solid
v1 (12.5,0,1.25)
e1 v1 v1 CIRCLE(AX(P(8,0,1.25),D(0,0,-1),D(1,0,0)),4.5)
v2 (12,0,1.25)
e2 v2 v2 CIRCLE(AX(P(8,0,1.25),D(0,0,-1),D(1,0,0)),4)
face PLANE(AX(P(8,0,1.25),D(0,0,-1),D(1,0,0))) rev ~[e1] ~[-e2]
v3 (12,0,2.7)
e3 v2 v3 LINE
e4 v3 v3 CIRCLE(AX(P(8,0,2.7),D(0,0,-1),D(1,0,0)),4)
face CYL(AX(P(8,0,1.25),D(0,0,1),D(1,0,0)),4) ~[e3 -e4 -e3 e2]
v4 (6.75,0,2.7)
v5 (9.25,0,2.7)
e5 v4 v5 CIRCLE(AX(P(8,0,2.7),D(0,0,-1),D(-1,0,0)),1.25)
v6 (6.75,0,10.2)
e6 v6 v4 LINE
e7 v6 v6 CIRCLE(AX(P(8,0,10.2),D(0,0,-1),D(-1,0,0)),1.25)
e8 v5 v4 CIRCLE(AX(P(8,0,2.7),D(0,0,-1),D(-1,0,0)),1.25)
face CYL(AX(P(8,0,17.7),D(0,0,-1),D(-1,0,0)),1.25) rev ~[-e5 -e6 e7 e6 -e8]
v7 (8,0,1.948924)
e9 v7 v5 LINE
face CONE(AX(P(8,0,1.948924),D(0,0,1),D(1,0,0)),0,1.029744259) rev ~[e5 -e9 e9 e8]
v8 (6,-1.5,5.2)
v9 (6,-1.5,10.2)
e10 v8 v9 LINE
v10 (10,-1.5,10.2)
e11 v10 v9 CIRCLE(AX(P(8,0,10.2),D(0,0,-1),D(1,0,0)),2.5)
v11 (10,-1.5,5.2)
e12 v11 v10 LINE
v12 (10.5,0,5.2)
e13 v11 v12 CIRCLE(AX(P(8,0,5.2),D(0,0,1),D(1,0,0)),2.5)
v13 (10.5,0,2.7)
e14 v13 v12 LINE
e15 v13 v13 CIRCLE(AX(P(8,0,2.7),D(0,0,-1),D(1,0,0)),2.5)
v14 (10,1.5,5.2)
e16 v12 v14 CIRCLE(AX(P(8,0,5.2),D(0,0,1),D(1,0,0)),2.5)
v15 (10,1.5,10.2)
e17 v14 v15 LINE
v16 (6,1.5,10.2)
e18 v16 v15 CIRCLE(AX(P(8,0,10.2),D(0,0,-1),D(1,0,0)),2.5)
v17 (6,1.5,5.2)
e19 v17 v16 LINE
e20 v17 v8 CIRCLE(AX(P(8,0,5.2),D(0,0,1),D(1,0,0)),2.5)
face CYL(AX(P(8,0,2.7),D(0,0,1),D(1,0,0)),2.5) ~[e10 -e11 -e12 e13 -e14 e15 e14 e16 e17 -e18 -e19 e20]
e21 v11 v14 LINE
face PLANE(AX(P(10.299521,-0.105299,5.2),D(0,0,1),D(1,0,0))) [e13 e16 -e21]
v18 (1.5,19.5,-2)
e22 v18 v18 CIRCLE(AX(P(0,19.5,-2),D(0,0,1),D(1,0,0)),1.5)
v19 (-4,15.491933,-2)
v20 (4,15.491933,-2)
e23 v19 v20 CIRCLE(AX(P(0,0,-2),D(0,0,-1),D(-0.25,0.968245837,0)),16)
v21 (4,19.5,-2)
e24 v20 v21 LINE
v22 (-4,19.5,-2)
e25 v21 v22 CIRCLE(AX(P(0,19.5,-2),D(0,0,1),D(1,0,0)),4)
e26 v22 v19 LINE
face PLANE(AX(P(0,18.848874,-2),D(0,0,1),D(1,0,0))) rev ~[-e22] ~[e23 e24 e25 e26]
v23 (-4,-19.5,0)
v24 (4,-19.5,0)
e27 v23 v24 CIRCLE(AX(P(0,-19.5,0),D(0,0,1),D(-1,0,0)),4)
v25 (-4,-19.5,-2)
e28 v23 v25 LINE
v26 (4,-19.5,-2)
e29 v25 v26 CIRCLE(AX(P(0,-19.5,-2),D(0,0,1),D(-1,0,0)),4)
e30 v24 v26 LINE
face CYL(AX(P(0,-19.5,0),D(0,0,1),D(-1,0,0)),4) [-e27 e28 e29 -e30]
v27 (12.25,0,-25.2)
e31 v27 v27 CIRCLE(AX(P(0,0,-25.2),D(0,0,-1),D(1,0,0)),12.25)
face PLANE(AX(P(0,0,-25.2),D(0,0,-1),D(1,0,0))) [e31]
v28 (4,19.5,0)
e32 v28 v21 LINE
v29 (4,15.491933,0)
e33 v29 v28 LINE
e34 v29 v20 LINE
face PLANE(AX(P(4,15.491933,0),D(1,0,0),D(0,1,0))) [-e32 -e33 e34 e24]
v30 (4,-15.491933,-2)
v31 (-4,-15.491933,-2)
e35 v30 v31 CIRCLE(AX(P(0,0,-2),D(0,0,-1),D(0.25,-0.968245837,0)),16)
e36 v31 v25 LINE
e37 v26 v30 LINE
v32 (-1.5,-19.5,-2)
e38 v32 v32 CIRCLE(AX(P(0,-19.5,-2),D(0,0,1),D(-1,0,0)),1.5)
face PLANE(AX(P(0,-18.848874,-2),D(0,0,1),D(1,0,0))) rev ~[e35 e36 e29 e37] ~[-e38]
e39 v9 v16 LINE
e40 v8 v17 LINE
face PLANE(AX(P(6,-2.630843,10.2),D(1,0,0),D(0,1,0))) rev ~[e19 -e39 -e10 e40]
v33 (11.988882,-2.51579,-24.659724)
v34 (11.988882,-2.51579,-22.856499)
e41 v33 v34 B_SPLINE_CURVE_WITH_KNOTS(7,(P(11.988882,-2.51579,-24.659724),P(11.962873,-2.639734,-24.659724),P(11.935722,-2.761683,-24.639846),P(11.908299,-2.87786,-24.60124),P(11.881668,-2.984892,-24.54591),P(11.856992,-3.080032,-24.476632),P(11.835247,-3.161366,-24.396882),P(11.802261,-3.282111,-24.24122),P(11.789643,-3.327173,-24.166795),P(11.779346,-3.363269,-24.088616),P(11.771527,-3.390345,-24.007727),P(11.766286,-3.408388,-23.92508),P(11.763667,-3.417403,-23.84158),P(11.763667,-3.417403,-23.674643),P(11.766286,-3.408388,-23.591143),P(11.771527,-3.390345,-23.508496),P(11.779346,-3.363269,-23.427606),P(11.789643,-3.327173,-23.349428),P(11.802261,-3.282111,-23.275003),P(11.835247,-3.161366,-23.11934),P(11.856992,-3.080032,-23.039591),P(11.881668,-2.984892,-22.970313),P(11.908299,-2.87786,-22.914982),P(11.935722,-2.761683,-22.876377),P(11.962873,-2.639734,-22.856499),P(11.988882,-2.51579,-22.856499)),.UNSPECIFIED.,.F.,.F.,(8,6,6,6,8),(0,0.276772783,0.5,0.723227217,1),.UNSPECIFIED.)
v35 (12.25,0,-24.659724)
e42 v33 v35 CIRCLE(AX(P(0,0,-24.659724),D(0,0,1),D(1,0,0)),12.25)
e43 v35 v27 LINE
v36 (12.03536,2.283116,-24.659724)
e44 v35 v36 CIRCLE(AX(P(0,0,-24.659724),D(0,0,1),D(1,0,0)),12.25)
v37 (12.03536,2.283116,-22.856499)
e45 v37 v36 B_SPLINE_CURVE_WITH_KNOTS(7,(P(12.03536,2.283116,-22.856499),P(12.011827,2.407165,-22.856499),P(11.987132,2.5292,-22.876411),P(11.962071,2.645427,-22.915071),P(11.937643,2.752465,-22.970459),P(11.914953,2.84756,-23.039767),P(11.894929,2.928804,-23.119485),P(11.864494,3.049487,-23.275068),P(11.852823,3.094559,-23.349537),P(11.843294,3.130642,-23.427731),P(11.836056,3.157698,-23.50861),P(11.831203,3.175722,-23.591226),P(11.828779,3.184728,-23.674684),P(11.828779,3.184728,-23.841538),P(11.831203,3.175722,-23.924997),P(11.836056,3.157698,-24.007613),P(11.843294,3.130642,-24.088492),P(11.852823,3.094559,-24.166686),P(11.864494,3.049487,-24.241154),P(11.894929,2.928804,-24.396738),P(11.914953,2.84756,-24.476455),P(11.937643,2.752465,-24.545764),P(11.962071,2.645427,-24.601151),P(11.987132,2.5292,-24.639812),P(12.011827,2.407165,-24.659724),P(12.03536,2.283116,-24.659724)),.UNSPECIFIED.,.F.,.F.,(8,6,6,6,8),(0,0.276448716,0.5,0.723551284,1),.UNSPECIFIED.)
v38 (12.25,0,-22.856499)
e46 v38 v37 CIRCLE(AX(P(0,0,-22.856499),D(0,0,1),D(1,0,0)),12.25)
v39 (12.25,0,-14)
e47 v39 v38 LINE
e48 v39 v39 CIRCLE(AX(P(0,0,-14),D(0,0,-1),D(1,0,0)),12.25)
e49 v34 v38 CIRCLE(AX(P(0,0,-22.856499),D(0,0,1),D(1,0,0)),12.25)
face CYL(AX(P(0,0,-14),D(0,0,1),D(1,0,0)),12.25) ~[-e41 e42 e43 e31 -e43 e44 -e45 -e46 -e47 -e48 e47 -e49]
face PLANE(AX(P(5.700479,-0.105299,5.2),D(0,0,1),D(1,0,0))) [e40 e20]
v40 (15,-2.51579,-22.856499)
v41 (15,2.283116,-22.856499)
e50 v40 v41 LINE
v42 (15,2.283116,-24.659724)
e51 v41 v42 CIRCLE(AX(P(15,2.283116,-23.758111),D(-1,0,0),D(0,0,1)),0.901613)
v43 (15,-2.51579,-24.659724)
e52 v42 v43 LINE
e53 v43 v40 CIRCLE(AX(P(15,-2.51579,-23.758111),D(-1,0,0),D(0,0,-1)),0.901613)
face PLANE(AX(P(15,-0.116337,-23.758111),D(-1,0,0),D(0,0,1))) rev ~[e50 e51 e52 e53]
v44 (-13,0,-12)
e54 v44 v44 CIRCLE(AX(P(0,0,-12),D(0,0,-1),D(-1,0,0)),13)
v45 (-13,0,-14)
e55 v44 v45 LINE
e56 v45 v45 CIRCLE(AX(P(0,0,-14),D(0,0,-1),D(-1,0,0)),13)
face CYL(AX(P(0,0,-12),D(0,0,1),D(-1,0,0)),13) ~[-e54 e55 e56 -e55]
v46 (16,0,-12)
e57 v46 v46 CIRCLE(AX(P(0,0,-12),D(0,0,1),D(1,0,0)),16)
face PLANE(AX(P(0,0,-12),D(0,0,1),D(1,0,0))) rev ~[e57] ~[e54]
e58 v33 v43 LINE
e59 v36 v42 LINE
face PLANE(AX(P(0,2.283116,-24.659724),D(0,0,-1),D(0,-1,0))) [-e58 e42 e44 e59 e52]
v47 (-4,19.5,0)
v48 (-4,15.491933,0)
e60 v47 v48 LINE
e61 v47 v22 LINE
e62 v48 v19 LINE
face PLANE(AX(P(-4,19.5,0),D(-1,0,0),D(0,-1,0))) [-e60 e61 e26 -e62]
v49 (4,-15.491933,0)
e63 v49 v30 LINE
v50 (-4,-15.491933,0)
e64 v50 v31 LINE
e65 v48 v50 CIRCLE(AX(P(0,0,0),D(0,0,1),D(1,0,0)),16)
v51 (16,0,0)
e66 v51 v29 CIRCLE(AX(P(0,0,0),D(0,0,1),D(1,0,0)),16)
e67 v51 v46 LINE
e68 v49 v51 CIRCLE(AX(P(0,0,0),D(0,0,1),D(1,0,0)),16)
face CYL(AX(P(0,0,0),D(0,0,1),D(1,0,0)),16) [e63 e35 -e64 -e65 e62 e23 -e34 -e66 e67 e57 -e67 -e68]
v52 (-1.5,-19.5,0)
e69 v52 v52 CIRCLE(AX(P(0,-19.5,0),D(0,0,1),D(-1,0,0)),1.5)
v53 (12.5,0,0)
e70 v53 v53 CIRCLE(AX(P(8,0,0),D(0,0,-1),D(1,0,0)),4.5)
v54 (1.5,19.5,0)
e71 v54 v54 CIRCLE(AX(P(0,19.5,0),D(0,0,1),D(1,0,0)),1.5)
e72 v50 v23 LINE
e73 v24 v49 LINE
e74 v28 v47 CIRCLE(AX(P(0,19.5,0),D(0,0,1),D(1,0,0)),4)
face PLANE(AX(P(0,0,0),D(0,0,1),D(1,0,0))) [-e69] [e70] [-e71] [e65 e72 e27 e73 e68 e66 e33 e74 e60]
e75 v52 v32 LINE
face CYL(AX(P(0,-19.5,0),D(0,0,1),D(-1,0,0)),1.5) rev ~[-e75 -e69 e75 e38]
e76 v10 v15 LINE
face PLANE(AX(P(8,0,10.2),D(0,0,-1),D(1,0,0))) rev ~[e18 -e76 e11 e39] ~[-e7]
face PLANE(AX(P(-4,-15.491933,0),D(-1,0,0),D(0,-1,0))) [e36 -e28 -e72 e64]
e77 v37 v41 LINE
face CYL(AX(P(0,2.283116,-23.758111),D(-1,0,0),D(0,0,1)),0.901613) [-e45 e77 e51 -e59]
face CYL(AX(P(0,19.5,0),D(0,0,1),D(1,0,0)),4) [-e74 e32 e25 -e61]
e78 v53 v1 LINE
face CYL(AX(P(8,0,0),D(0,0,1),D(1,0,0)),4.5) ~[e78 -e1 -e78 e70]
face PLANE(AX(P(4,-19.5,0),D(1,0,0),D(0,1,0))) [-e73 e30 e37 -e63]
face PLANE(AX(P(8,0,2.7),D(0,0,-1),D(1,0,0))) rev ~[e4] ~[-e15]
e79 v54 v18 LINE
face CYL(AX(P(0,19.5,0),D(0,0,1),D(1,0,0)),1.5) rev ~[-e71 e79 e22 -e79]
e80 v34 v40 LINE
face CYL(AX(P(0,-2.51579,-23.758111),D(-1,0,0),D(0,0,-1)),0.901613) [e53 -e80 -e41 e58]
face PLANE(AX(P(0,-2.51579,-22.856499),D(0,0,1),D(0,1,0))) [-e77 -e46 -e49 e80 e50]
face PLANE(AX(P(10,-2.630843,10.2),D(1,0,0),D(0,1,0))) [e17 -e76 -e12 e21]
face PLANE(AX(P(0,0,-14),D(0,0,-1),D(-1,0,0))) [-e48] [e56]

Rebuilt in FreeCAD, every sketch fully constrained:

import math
import FreeCAD as App
import Part
import Sketcher
from FreeCAD import Vector
Q = App.Units.Quantity

doc = App.newDocument("Part")
params = doc.addObject("Spreadsheet::Sheet", "Params")
for row, (alias, value) in enumerate([
    ("sketch1_diameter", "32 mm"),
    ("pad1_length", "12 mm"),
    ("sketch2_diameter", "26 mm"),
    ("pad2_length", "2 mm"),
    ("sketch3_diameter", "24.5 mm"),
    ("pad3_length", "11.2 mm"),
    ("sketch4_diameter", "3 mm"),
    ("sketch4_radius", "16 mm"),
    ("sketch4_radius2", "4 mm"),
    ("pad4_length", "2 mm"),
    ("sketch5_width", "4.5 mm"),
    ("sketch5_width2", "0.5 mm"),
    ("sketch5_width3", "1.5 mm"),
    ("sketch5_height", "10.2 mm"),
    ("sketch5_height2", "7.5 mm"),
    ("revolution_angle", "360 deg"),
    ("pocket1_length", "5 mm"),
    ("sketch7_diameter", "2.5 mm"),
    ("hole_diameter", "2.5 mm"),
    ("hole_depth", "7.5 mm"),
    ("pad5_length", "15 mm"),
], start=1):
    params.set(f"A{row}", alias)
    params.set(f"B{row}", "=" + value)
    params.setAlias(f"B{row}", alias)

body = doc.addObject("PartDesign::Body", "Body")

sketch1 = body.newObject("Sketcher::SketchObject", "Sketch")
sketch1.AttachmentSupport = (doc.getObject("XY_Plane"), [""])
sketch1.MapMode = "FlatFace"
sketch1.addGeometry(Part.Circle(Vector(0, 0, 0), Vector(0, 0, 1), 16), False)
sketch1.addConstraint([
    Sketcher.Constraint("Coincident", 0, 3, -1, 1),
    Sketcher.Constraint("Diameter", 0, Q("32 mm")),
])
sketch1.setExpression("Constraints[1]", "Params.sketch1_diameter")
pad1 = body.newObject("PartDesign::Pad", "Pad")
pad1.Profile = sketch1
pad1.setExpression("Length", "Params.pad1_length")
pad1.Reversed = True

sketch2 = body.newObject("Sketcher::SketchObject", "Sketch001")
sketch2.AttachmentSupport = (doc.getObject("XY_Plane"), [""])
sketch2.MapMode = "FlatFace"
sketch2.AttachmentOffset = App.Placement(Vector(0, 0, -12), App.Rotation())
sketch2.addGeometry(Part.Circle(Vector(0, 0, 0), Vector(0, 0, 1), 13), False)
sketch2.addConstraint([
    Sketcher.Constraint("Coincident", 0, 3, -1, 1),
    Sketcher.Constraint("Diameter", 0, Q("26 mm")),
])
sketch2.setExpression("Constraints[1]", "Params.sketch2_diameter")
pad2 = body.newObject("PartDesign::Pad", "Pad001")
pad2.Profile = sketch2
pad2.setExpression("Length", "Params.pad2_length")
pad2.Reversed = True

sketch3 = body.newObject("Sketcher::SketchObject", "Sketch002")
sketch3.AttachmentSupport = (doc.getObject("XY_Plane"), [""])
sketch3.MapMode = "FlatFace"
sketch3.AttachmentOffset = App.Placement(Vector(0, 0, -14), App.Rotation())
sketch3.addGeometry(Part.Circle(Vector(0, 0, 0), Vector(0, 0, 1), 12), False)
sketch3.addConstraint([
    Sketcher.Constraint("Coincident", 0, 3, -1, 1),
    Sketcher.Constraint("Diameter", 0, Q("24.5 mm")),
])
sketch3.setExpression("Constraints[1]", "Params.sketch3_diameter")
pad3 = body.newObject("PartDesign::Pad", "Pad002")
pad3.Profile = sketch3
pad3.setExpression("Length", "Params.pad3_length")
pad3.Reversed = True

sketch4 = body.newObject("Sketcher::SketchObject", "Sketch003")
sketch4.AttachmentSupport = (doc.getObject("XY_Plane"), [""])
sketch4.MapMode = "FlatFace"
sketch4.addGeometry([
    Part.LineSegment(Vector(-4, 19.5, 0), Vector(-4, 15.5, 0)),
    Part.ArcOfCircle(Part.Circle(Vector(0, 0, 0), Vector(0, 0, 1), 16), math.radians(76), math.radians(104)),
    Part.LineSegment(Vector(4, 15.5, 0), Vector(4, 19.5, 0)),
    Part.ArcOfCircle(Part.Circle(Vector(0, 19.5, 0), Vector(0, 0, 1), 4), math.radians(0), math.radians(180)),
    Part.Circle(Vector(0, 19.5, 0), Vector(0, 0, 1), 1.5),
    Part.LineSegment(Vector(-4, -15.5, 0), Vector(-4, -19.5, 0)),
    Part.ArcOfCircle(Part.Circle(Vector(0, -19.5, 0), Vector(0, 0, 1), 4), math.radians(180), math.radians(360)),
    Part.LineSegment(Vector(4, -19.5, 0), Vector(4, -15.5, 0)),
    Part.ArcOfCircle(Part.Circle(Vector(0, 0, 0), Vector(0, 0, 1), 16), math.radians(-104), math.radians(-76)),
    Part.Circle(Vector(0, -19.5, 0), Vector(0, 0, 1), 1.5),
], False)
sketch4.addConstraint([
    Sketcher.Constraint("Coincident", 0, 2, 1, 2),
    Sketcher.Constraint("Coincident", 1, 1, 2, 1),
    Sketcher.Constraint("Tangent", 2, 2, 3, 1),
    Sketcher.Constraint("Tangent", 3, 2, 0, 1),
    Sketcher.Constraint("Tangent", 5, 2, 6, 1),
    Sketcher.Constraint("Tangent", 6, 2, 7, 1),
    Sketcher.Constraint("Coincident", 7, 2, 8, 2),
    Sketcher.Constraint("Coincident", 8, 1, 5, 1),
    Sketcher.Constraint("Vertical", 0),
    Sketcher.Constraint("Vertical", 2),
    Sketcher.Constraint("Vertical", 5),
    Sketcher.Constraint("Vertical", 7),
    Sketcher.Constraint("Coincident", 1, 3, -1, 1),
    Sketcher.Constraint("Coincident", 8, 3, -1, 1),
    Sketcher.Constraint("Coincident", 4, 3, 3, 3),
    Sketcher.Constraint("Coincident", 9, 3, 6, 3),
    Sketcher.Constraint("Equal", 3, 6),
    Sketcher.Constraint("Equal", 1, 8),
    Sketcher.Constraint("Equal", 4, 9),
    Sketcher.Constraint("Symmetric", 3, 3, 6, 3, -1, 1),
    Sketcher.Constraint("PointOnObject", 3, 3, -2),
    Sketcher.Constraint("Diameter", 4, Q("3 mm")),
    Sketcher.Constraint("Radius", 1, Q("16 mm")),
    Sketcher.Constraint("Radius", 3, Q("4 mm")),
    Sketcher.Constraint("DistanceY", 6, 3, 3, 3, Q("39 mm")),
])
sketch4.setExpression("Constraints[21]", "Params.sketch4_diameter")
sketch4.setExpression("Constraints[22]", "Params.sketch4_radius")
sketch4.setExpression("Constraints[23]", "Params.sketch4_radius2")
pad4 = body.newObject("PartDesign::Pad", "Pad003")
pad4.Profile = sketch4
pad4.setExpression("Length", "Params.pad4_length")
pad4.Reversed = True

sketch5 = body.newObject("Sketcher::SketchObject", "Sketch004")
sketch5.AttachmentSupport = (doc.getObject("XZ_Plane"), [""])
sketch5.MapMode = "FlatFace"
sketch5.addGeometry([
    Part.LineSegment(Vector(8, 10.2, 0), Vector(8, 0, 0)),
    Part.LineSegment(Vector(8, 0, 0), Vector(3.5, 0, 0)),
    Part.LineSegment(Vector(3.5, 0, 0), Vector(3.5, 1.2, 0)),
    Part.LineSegment(Vector(3.5, 1.2, 0), Vector(4, 1.2, 0)),
    Part.LineSegment(Vector(4, 1.2, 0), Vector(4, 2.7, 0)),
    Part.LineSegment(Vector(4, 2.7, 0), Vector(5.5, 2.7, 0)),
    Part.LineSegment(Vector(5.5, 2.7, 0), Vector(5.5, 10.2, 0)),
    Part.LineSegment(Vector(5.5, 10.2, 0), Vector(8, 10.2, 0)),
], False)
sketch5.addGeometry(Part.LineSegment(Vector(8, 10.2, 0), Vector(8, 0, 0)), True)
sketch5.addConstraint([
    Sketcher.Constraint("Coincident", 0, 2, 1, 1),
    Sketcher.Constraint("Coincident", 1, 2, 2, 1),
    Sketcher.Constraint("Coincident", 2, 2, 3, 1),
    Sketcher.Constraint("Coincident", 3, 2, 4, 1),
    Sketcher.Constraint("Coincident", 4, 2, 5, 1),
    Sketcher.Constraint("Coincident", 5, 2, 6, 1),
    Sketcher.Constraint("Coincident", 6, 2, 7, 1),
    Sketcher.Constraint("Coincident", 7, 2, 0, 1),
    Sketcher.Constraint("Vertical", 0),
    Sketcher.Constraint("Horizontal", 1),
    Sketcher.Constraint("Vertical", 2),
    Sketcher.Constraint("Horizontal", 3),
    Sketcher.Constraint("Vertical", 4),
    Sketcher.Constraint("Horizontal", 5),
    Sketcher.Constraint("Vertical", 6),
    Sketcher.Constraint("Horizontal", 7),
    Sketcher.Constraint("Vertical", 8),
    Sketcher.Constraint("Coincident", 8, 1, 7, 2),
    Sketcher.Constraint("PointOnObject", 0, 2, -1),
    Sketcher.Constraint("PointOnObject", 8, 2, -1),
    Sketcher.Constraint("DistanceX", 1, 2, 1, 1, Q("4.5 mm")),
    Sketcher.Constraint("DistanceX", 3, 1, 3, 2, Q("0.5 mm")),
    Sketcher.Constraint("DistanceX", 5, 1, 5, 2, Q("1.5 mm")),
    Sketcher.Constraint("DistanceY", 0, 2, 0, 1, Q("10.2 mm")),
    Sketcher.Constraint("DistanceY", 6, 1, 6, 2, Q("7.5 mm")),
    Sketcher.Constraint("DistanceX", -1, 1, 0, 2, Q("8 mm")),
    Sketcher.Constraint("DistanceY", 2, 1, 2, 2, Q("1.25 mm")),
])
sketch5.setExpression("Constraints[20]", "Params.sketch5_width")
sketch5.setExpression("Constraints[21]", "Params.sketch5_width2")
sketch5.setExpression("Constraints[22]", "Params.sketch5_width3")
sketch5.setExpression("Constraints[23]", "Params.sketch5_height")
sketch5.setExpression("Constraints[24]", "Params.sketch5_height2")
revolution = body.newObject("PartDesign::Revolution", "Revolution")
revolution.Profile = sketch5
revolution.ReferenceAxis = (sketch5, ["Axis0"])
revolution.setExpression("Angle", "Params.revolution_angle")

sketch6 = body.newObject("Sketcher::SketchObject", "Sketch005")
sketch6.AttachmentSupport = (doc.getObject("XY_Plane"), [""])
sketch6.MapMode = "FlatFace"
sketch6.AttachmentOffset = App.Placement(Vector(0, 0, 10.2), App.Rotation())
sketch6.addGeometry([
    Part.LineSegment(Vector(5.4, 2.4, 0), Vector(5.4, -2.6, 0)),
    Part.LineSegment(Vector(5.4, -2.6, 0), Vector(6, -2.6, 0)),
    Part.LineSegment(Vector(6, -2.6, 0), Vector(6, 2.4, 0)),
    Part.LineSegment(Vector(6, 2.4, 0), Vector(5.4, 2.4, 0)),
    Part.LineSegment(Vector(10, 2.4, 0), Vector(10, -2.6, 0)),
    Part.LineSegment(Vector(10, -2.6, 0), Vector(10.6, -2.6, 0)),
    Part.LineSegment(Vector(10.6, -2.6, 0), Vector(10.6, 2.4, 0)),
    Part.LineSegment(Vector(10.6, 2.4, 0), Vector(10, 2.4, 0)),
], False)
sketch6.addConstraint([
    Sketcher.Constraint("Coincident", 0, 2, 1, 1),
    Sketcher.Constraint("Coincident", 1, 2, 2, 1),
    Sketcher.Constraint("Coincident", 2, 2, 3, 1),
    Sketcher.Constraint("Coincident", 3, 2, 0, 1),
    Sketcher.Constraint("Coincident", 4, 2, 5, 1),
    Sketcher.Constraint("Coincident", 5, 2, 6, 1),
    Sketcher.Constraint("Coincident", 6, 2, 7, 1),
    Sketcher.Constraint("Coincident", 7, 2, 4, 1),
    Sketcher.Constraint("Vertical", 0),
    Sketcher.Constraint("Horizontal", 1),
    Sketcher.Constraint("Vertical", 2),
    Sketcher.Constraint("Horizontal", 3),
    Sketcher.Constraint("Vertical", 4),
    Sketcher.Constraint("Horizontal", 5),
    Sketcher.Constraint("Vertical", 6),
    Sketcher.Constraint("Horizontal", 7),
    Sketcher.Constraint("Horizontal", 1, 2, 4, 2),
    Sketcher.Constraint("Horizontal", 3, 2, 6, 2),
    Sketcher.Constraint("Equal", 3, 5),
    Sketcher.Constraint("DistanceX", -1, 1, 1, 2, Q("6 mm")),
    Sketcher.Constraint("DistanceX", -1, 1, 4, 2, Q("10 mm")),
    Sketcher.Constraint("DistanceX", 1, 1, 1, 2, Q("0.599042 mm")),
    Sketcher.Constraint("DistanceY", 0, 2, 0, 1, Q("5.051088 mm")),
    Sketcher.Constraint("DistanceY", 0, 2, -1, 1, Q("2.630843 mm")),
])
pocket1 = body.newObject("PartDesign::Pocket", "Pocket")
pocket1.Profile = sketch6
pocket1.setExpression("Length", "Params.pocket1_length")

sketch7 = body.newObject("Sketcher::SketchObject", "Sketch006")
sketch7.AttachmentSupport = (doc.getObject("XY_Plane"), [""])
sketch7.MapMode = "FlatFace"
sketch7.AttachmentOffset = App.Placement(Vector(0, 0, 10.2), App.Rotation())
sketch7.addGeometry(Part.Circle(Vector(8, 0, 0), Vector(0, 0, 1), 1.2), False)
sketch7.addConstraint([
    Sketcher.Constraint("PointOnObject", 0, 3, -1),
    Sketcher.Constraint("Diameter", 0, Q("2.5 mm")),
    Sketcher.Constraint("DistanceX", -1, 1, 0, 3, Q("8 mm")),
])
sketch7.setExpression("Constraints[1]", "Params.sketch7_diameter")
doc.recompute()
hole = body.newObject("PartDesign::Hole", "Hole")
hole.Profile = sketch7
hole.ThreadType = "None"
hole.setExpression("Diameter", "Params.hole_diameter")
hole.DepthType = "Dimension"
hole.setExpression("Depth", "Params.hole_depth")
hole.DrillPoint = "Angled"
hole.DrillPointAngle = 118

sketch8 = body.newObject("Sketcher::SketchObject", "Sketch007")
sketch8.AttachmentSupport = (doc.getObject("YZ_Plane"), [""])
sketch8.MapMode = "FlatFace"
sketch8.addGeometry([
    Part.LineSegment(Vector(-2.5, -24.7, 0), Vector(2.3, -24.7, 0)),
    Part.ArcOfCircle(Part.Circle(Vector(2.3, -23.8, 0), Vector(0, 0, 1), 0.9), math.radians(-90), math.radians(90)),
    Part.LineSegment(Vector(2.3, -22.9, 0), Vector(-2.5, -22.9, 0)),
    Part.ArcOfCircle(Part.Circle(Vector(-2.5, -23.8, 0), Vector(0, 0, 1), 0.9), math.radians(90), math.radians(270)),
], False)
sketch8.addConstraint([
    Sketcher.Constraint("Tangent", 0, 2, 1, 1),
    Sketcher.Constraint("Tangent", 1, 2, 2, 1),
    Sketcher.Constraint("Tangent", 2, 2, 3, 1),
    Sketcher.Constraint("Tangent", 3, 2, 0, 1),
    Sketcher.Constraint("Horizontal", 0),
    Sketcher.Constraint("Horizontal", 2),
    Sketcher.Constraint("Radius", 1, Q("0.901613 mm")),
    Sketcher.Constraint("DistanceY", 1, 2, -1, 1, Q("22.856499 mm")),
    Sketcher.Constraint("DistanceX", 0, 1, 0, 2, Q("4.798906 mm")),
    Sketcher.Constraint("DistanceX", 3, 3, -1, 1, Q("2.51579 mm")),
])
pad5 = body.newObject("PartDesign::Pad", "Pad004")
pad5.Profile = sketch8
pad5.setExpression("Length", "Params.pad5_length")

doc.recompute()
